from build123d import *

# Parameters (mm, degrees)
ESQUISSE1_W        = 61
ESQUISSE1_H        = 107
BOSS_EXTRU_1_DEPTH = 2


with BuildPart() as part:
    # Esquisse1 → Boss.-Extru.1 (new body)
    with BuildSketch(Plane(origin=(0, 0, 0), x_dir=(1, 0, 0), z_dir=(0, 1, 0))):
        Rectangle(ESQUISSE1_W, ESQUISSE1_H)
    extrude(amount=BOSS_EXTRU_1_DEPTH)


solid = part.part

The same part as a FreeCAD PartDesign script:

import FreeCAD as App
import Part
import Sketcher
from FreeCAD import Vector
Q = App.Units.Quantity

doc = App.newDocument("Part")
params = doc.addObject("Spreadsheet::Sheet", "Params")
for row, (alias, value) in enumerate([
    ("sketch1_width", "61 mm"),
    ("sketch1_height", "107 mm"),
    ("pad1_length", "2 mm"),
], start=1):
    params.set(f"A{row}", alias)
    params.set(f"B{row}", "=" + value)
    params.setAlias(f"B{row}", alias)

body = doc.addObject("PartDesign::Body", "Body")

# Sketch on XZ plane
sketch1 = body.newObject("Sketcher::SketchObject", "Sketch")
sketch1.AttachmentSupport = (doc.getObject("XZ_Plane"), [""])
sketch1.MapMode = "FlatFace"
sketch1.addGeometry(Part.LineSegment(Vector(-30, -54, 0), Vector(-30, 54, 0)), False)
sketch1.addGeometry(Part.LineSegment(Vector(-30, 54, 0), Vector(30, 54, 0)), False)
sketch1.addGeometry(Part.LineSegment(Vector(30, 54, 0), Vector(30, -54, 0)), False)
sketch1.addGeometry(Part.LineSegment(Vector(30, -54, 0), Vector(-30, -54, 0)), False)
sketch1.addConstraint(Sketcher.Constraint("Coincident", 0, 2, 1, 1))
sketch1.addConstraint(Sketcher.Constraint("Coincident", 1, 2, 2, 1))
sketch1.addConstraint(Sketcher.Constraint("Coincident", 2, 2, 3, 1))
sketch1.addConstraint(Sketcher.Constraint("Coincident", 3, 2, 0, 1))
sketch1.addConstraint(Sketcher.Constraint("Vertical", 0))
sketch1.addConstraint(Sketcher.Constraint("Horizontal", 1))
sketch1.addConstraint(Sketcher.Constraint("Vertical", 2))
sketch1.addConstraint(Sketcher.Constraint("Horizontal", 3))
sketch1.addConstraint(Sketcher.Constraint("Symmetric", 0, 2, 2, 2, -1, 1))
sketch1.addConstraint(Sketcher.Constraint("DistanceX", 1, 1, 1, 2, Q("61 mm")))
sketch1.addConstraint(Sketcher.Constraint("DistanceY", 0, 1, 0, 2, Q("107 mm")))
sketch1.setExpression("Constraints[9]", "Params.sketch1_width")
sketch1.setExpression("Constraints[10]", "Params.sketch1_height")
pad1 = body.newObject("PartDesign::Pad", "Pad")
pad1.Profile = sketch1
pad1.setExpression("Length", "Params.pad1_length")
pad1.Reversed = True

doc.recompute()
